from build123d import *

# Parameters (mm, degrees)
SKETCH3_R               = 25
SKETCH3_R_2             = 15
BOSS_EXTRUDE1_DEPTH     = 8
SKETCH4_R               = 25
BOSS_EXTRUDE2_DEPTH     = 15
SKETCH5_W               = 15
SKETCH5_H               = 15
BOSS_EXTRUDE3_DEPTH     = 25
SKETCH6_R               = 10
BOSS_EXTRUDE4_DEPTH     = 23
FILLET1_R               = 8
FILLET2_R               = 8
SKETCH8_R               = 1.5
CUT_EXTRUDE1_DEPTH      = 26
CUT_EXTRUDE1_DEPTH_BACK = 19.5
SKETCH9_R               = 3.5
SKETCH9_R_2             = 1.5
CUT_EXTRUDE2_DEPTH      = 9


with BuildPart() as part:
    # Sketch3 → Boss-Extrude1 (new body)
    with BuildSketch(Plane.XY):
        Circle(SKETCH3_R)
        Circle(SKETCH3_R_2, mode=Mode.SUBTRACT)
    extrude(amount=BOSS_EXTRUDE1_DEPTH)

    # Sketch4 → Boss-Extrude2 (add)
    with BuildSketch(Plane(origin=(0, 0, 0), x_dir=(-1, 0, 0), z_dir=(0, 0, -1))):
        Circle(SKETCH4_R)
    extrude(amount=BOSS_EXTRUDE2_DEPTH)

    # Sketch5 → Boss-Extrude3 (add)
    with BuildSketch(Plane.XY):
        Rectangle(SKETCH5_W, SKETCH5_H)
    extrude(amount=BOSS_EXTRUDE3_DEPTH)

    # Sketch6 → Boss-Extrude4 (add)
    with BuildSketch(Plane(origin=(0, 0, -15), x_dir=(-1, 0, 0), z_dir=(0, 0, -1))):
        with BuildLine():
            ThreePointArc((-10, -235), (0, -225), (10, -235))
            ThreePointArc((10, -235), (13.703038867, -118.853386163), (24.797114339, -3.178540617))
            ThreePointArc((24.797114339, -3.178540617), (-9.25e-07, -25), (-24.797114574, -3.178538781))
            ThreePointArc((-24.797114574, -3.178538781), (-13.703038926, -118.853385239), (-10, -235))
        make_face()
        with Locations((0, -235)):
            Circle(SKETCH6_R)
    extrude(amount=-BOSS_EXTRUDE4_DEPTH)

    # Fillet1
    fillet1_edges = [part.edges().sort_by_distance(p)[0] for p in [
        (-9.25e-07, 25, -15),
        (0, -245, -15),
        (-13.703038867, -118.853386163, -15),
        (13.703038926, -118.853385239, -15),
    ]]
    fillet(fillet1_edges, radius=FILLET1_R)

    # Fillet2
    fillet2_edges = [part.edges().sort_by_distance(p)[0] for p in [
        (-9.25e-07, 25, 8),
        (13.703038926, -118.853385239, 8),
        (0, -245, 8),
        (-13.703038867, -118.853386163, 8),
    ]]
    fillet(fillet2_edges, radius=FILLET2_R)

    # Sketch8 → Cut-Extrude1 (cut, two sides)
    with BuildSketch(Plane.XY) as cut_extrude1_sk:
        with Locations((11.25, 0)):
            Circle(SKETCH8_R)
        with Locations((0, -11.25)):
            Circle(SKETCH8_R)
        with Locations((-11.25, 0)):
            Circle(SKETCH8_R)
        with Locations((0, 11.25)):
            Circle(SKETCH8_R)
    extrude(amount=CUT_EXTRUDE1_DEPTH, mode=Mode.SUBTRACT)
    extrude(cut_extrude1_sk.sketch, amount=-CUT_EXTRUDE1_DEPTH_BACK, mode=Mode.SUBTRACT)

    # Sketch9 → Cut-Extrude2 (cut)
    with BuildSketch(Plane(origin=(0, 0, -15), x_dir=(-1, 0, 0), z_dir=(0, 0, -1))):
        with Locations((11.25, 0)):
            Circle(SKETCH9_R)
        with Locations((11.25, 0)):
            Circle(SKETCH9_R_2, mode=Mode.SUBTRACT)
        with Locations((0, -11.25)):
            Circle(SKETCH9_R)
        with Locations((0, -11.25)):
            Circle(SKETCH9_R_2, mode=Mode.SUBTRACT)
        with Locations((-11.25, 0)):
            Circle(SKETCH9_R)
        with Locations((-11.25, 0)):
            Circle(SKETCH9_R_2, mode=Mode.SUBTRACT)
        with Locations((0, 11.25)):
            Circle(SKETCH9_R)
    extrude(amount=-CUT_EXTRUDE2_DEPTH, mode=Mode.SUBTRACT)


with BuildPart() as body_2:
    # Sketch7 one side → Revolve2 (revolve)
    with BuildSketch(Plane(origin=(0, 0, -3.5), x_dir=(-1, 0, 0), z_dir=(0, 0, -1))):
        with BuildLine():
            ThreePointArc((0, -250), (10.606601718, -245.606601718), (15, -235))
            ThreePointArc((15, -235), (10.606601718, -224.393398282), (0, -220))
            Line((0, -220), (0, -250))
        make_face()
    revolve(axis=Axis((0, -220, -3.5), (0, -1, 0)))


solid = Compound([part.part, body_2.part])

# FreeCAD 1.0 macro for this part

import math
import FreeCAD as App
import Part
import Sketcher

V = App.Vector


def edges_at(feature, points):
    """Names of the edges that pass closest to the given points."""
    edges = feature.Shape.Edges
    near = lambda p: min(range(len(edges)), key=lambda i: edges[i].distToShape(Part.Vertex(*p))[0])
    return sorted({f"Edge{near(p) + 1}" for p in points})

doc = App.newDocument("Part")
params = doc.addObject("Spreadsheet::Sheet", "Params")
for row, (alias, value) in enumerate([
    ("sketch1_diameter", "50 mm"),
    ("sketch1_diameter2", "30 mm"),
    ("pad1_length", "8 mm"),
    ("sketch2_diameter", "50 mm"),
    ("pad2_length", "15 mm"),
    ("sketch3_width", "15 mm"),
    ("pad3_length", "25 mm"),
    ("sketch4_radius", "25 mm"),
    ("sketch4_radius2", "10 mm"),
    ("pad4_length", "23 mm"),
    ("fillet_radius", "8 mm"),
    ("fillet2_radius", "8 mm"),
    ("sketch5_diameter", "3 mm"),
    ("sketch6_diameter", "7 mm"),
    ("sketch6_diameter2", "3 mm"),
    ("pocket2_length", "9 mm"),
    ("sketch7_radius", "15 mm"),
    ("revolution_angle", "360 deg"),
], start=1):
    params.set(f"A{row}", alias)
    params.set(f"B{row}", "=" + value)
    params.setAlias(f"B{row}", alias)

body = doc.addObject("PartDesign::Body", "Body")

# Sketch on XY plane
sketch1 = body.newObject("Sketcher::SketchObject", "Sketch")
sketch1.AttachmentSupport = (doc.getObject("XY_Plane"), [""])
sketch1.MapMode = "FlatFace"
sketch1.addGeometry([
    Part.Circle(V(0, 0, 0), V(0, 0, 1), 25),
    Part.Circle(V(0, 0, 0), V(0, 0, 1), 15),
], False)
sketch1.addConstraint([
    Sketcher.Constraint("Coincident", 0, 3, -1, 1),
    Sketcher.Constraint("Coincident", 1, 3, -1, 1),
    Sketcher.Constraint("Diameter", 0, 50.0),
    Sketcher.Constraint("Diameter", 1, 30.0),
])
sketch1.setExpression("Constraints[2]", "Params.sketch1_diameter")
sketch1.setExpression("Constraints[3]", "Params.sketch1_diameter2")
pad1 = body.newObject("PartDesign::Pad", "Pad")
pad1.Profile = sketch1
pad1.setExpression("Length", "Params.pad1_length")

# Sketch on XY plane
sketch2 = body.newObject("Sketcher::SketchObject", "Sketch001")
sketch2.AttachmentSupport = (doc.getObject("XY_Plane"), [""])
sketch2.MapMode = "FlatFace"
sketch2.addGeometry(Part.Circle(V(0, 0, 0), V(0, 0, 1), 25), False)
sketch2.addConstraint([
    Sketcher.Constraint("Coincident", 0, 3, -1, 1),
    Sketcher.Constraint("Diameter", 0, 50.0),
])
sketch2.setExpression("Constraints[1]", "Params.sketch2_diameter")
pad2 = body.newObject("PartDesign::Pad", "Pad001")
pad2.Profile = sketch2
pad2.setExpression("Length", "Params.pad2_length")
pad2.Reversed = True

# Sketch on XY plane
sketch3 = body.newObject("Sketcher::SketchObject", "Sketch002")
sketch3.AttachmentSupport = (doc.getObject("XY_Plane"), [""])
sketch3.MapMode = "FlatFace"
sketch3.addGeometry([
    Part.LineSegment(V(-7.5, 7.5, 0), V(-7.5, -7.5, 0)),
    Part.LineSegment(V(-7.5, -7.5, 0), V(7.5, -7.5, 0)),
    Part.LineSegment(V(7.5, -7.5, 0), V(7.5, 7.5, 0)),
    Part.LineSegment(V(7.5, 7.5, 0), V(-7.5, 7.5, 0)),
], False)
sketch3.addConstraint([
    Sketcher.Constraint("Coincident", 0, 2, 1, 1),
    Sketcher.Constraint("Coincident", 1, 2, 2, 1),
    Sketcher.Constraint("Coincident", 2, 2, 3, 1),
    Sketcher.Constraint("Coincident", 3, 2, 0, 1),
    Sketcher.Constraint("Vertical", 0),
    Sketcher.Constraint("Horizontal", 1),
    Sketcher.Constraint("Vertical", 2),
    Sketcher.Constraint("Horizontal", 3),
    Sketcher.Constraint("Symmetric", 0, 2, 2, 2, -1, 1),
    Sketcher.Constraint("Equal", 3, 0),
    Sketcher.Constraint("DistanceX", 1, 1, 1, 2, 15.0),
])
sketch3.setExpression("Constraints[10]", "Params.sketch3_width")
pad3 = body.newObject("PartDesign::Pad", "Pad002")
pad3.Profile = sketch3
pad3.setExpression("Length", "Params.pad3_length")

# Sketch on XY plane
sketch4 = body.newObject("Sketcher::SketchObject", "Sketch003")
sketch4.AttachmentSupport = (doc.getObject("XY_Plane"), [""])
sketch4.MapMode = "FlatFace"
sketch4.AttachmentOffset = App.Placement(V(0, 0, -15), App.Rotation())
sketch4.addGeometry([
    Part.ArcOfCircle(Part.Circle(V(-1833.333333, -235, 0), V(0, 0, 1), 1823.333333), math.radians(0), math.radians(7.304446)),
    Part.ArcOfCircle(Part.Circle(V(0, 0, 0), V(0, 0, 1), 25), math.radians(-172.695551), math.radians(-7.304445)),
    Part.ArcOfCircle(Part.Circle(V(1833.333333, -235, 0), V(0, 0, 1), 1823.333333), math.radians(172.695554), math.radians(180)),
    Part.ArcOfCircle(Part.Circle(V(0, -235, 0), V(0, 0, 1), 10), math.radians(180), math.radians(360)),
], False)
sketch4.addConstraint([
    Sketcher.Constraint("Tangent", 0, 2, 1, 1),
    Sketcher.Constraint("Tangent", 1, 2, 2, 1),
    Sketcher.Constraint("Tangent", 2, 2, 3, 2),
    Sketcher.Constraint("Tangent", 3, 1, 0, 1),
    Sketcher.Constraint("Coincident", 1, 3, -1, 1),
    Sketcher.Constraint("Equal", 0, 2),
    Sketcher.Constraint("PointOnObject", 3, 3, -2),
    Sketcher.Constraint("Horizontal", 2, 3, 3, 3),
    Sketcher.Constraint("Radius", 1, 25.0),
    Sketcher.Constraint("Radius", 3, 10.0),
    Sketcher.Constraint("DistanceY", 0, 3, -1, 1, 235.0),
])
sketch4.setExpression("Constraints[8]", "Params.sketch4_radius")
sketch4.setExpression("Constraints[9]", "Params.sketch4_radius2")
pad4 = body.newObject("PartDesign::Pad", "Pad003")
pad4.Profile = sketch4
pad4.setExpression("Length", "Params.pad4_length")
doc.recompute()

fillet = body.newObject("PartDesign::Fillet", "Fillet")
fillet.Base = (pad4, edges_at(pad4, [
    (0, 25, -15),
    (0, -245, -15),
    (-13.703, -118.853, -15),
    (13.703, -118.853, -15),
]))
fillet.setExpression("Radius", "Params.fillet_radius")
doc.recompute()

fillet2 = body.newObject("PartDesign::Fillet", "Fillet001")
fillet2.Base = (fillet, edges_at(fillet, [
    (0, 25, 8),
    (13.703, -118.853, 8),
    (0, -245, 8),
    (-13.703, -118.853, 8),
]))
fillet2.setExpression("Radius", "Params.fillet2_radius")

# Sketch on XY plane
sketch5 = body.newObject("Sketcher::SketchObject", "Sketch004")
sketch5.AttachmentSupport = (doc.getObject("XY_Plane"), [""])
sketch5.MapMode = "FlatFace"
sketch5.addGeometry([
    Part.Circle(V(11.25, 0, 0), V(0, 0, 1), 1.5),
    Part.Circle(V(0, -11.25, 0), V(0, 0, 1), 1.5),
    Part.Circle(V(-11.25, 0, 0), V(0, 0, 1), 1.5),
    Part.Circle(V(0, 11.25, 0), V(0, 0, 1), 1.5),
], False)
sketch5.addConstraint([
    Sketcher.Constraint("Equal", 0, 1),
    Sketcher.Constraint("Equal", 1, 2),
    Sketcher.Constraint("Equal", 2, 3),
    Sketcher.Constraint("Symmetric", 0, 3, 2, 3, -1, 1),
    Sketcher.Constraint("Symmetric", 1, 3, 3, 3, -1, 1),
    Sketcher.Constraint("PointOnObject", 0, 3, -1),
    Sketcher.Constraint("PointOnObject", 1, 3, -2),
    Sketcher.Constraint("Diameter", 0, 3.0),
    Sketcher.Constraint("DistanceX", 2, 3, 0, 3, 22.5),
    Sketcher.Constraint("DistanceY", 1, 3, 3, 3, 22.5),
])
sketch5.setExpression("Constraints[7]", "Params.sketch5_diameter")
pocket1 = body.newObject("PartDesign::Pocket", "Pocket")
pocket1.Profile = sketch5
pocket1.Type = "ThroughAll"
pocket1.Midplane = True

# Sketch on XY plane
sketch6 = body.newObject("Sketcher::SketchObject", "Sketch005")
sketch6.AttachmentSupport = (doc.getObject("XY_Plane"), [""])
sketch6.MapMode = "FlatFace"
sketch6.AttachmentOffset = App.Placement(V(0, 0, -15), App.Rotation())
sketch6.addGeometry([
    Part.Circle(V(-11.25, 0, 0), V(0, 0, 1), 3.5),  # 0
    Part.Circle(V(-11.25, 0, 0), V(0, 0, 1), 1.5),  # 1
    Part.Circle(V(0, -11.25, 0), V(0, 0, 1), 3.5),  # 2
    Part.Circle(V(0, -11.25, 0), V(0, 0, 1), 1.5),  # 3
    Part.Circle(V(11.25, 0, 0), V(0, 0, 1), 3.5),  # 4
    Part.Circle(V(11.25, 0, 0), V(0, 0, 1), 1.5),  # 5
    Part.Circle(V(0, 11.25, 0), V(0, 0, 1), 3.5),  # 6
], False)
sketch6.addConstraint([
    Sketcher.Constraint("Coincident", 1, 3, 0, 3),
    Sketcher.Constraint("Coincident", 3, 3, 2, 3),
    Sketcher.Constraint("Coincident", 5, 3, 4, 3),
    Sketcher.Constraint("Equal", 0, 2),
    Sketcher.Constraint("Equal", 1, 3),
    Sketcher.Constraint("Equal", 2, 4),
    Sketcher.Constraint("Equal", 3, 5),
    Sketcher.Constraint("Equal", 4, 6),
    Sketcher.Constraint("Symmetric", 0, 3, 4, 3, -1, 1),
    Sketcher.Constraint("Symmetric", 2, 3, 6, 3, -1, 1),
    Sketcher.Constraint("PointOnObject", 0, 3, -1),
    Sketcher.Constraint("PointOnObject", 2, 3, -2),
    Sketcher.Constraint("Diameter", 0, 7.0),
    Sketcher.Constraint("Diameter", 1, 3.0),
    Sketcher.Constraint("DistanceX", 0, 3, 4, 3, 22.5),
    Sketcher.Constraint("DistanceY", 2, 3, 6, 3, 22.5),
])
sketch6.setExpression("Constraints[12]", "Params.sketch6_diameter")
sketch6.setExpression("Constraints[13]", "Params.sketch6_diameter2")
pocket2 = body.newObject("PartDesign::Pocket", "Pocket001")
pocket2.Profile = sketch6
pocket2.setExpression("Length", "Params.pocket2_length")
pocket2.Reversed = True
body2 = doc.addObject("PartDesign::Body", "Body001")

# Sketch on XY plane
sketch7 = body2.newObject("Sketcher::SketchObject", "Sketch006")
sketch7.AttachmentSupport = (doc.getObject("XY_Plane001"), [""])
sketch7.MapMode = "FlatFace"
sketch7.AttachmentOffset = App.Placement(V(0, 0, -3.5), App.Rotation())
sketch7.addGeometry([
    Part.ArcOfCircle(Part.Circle(V(0, -235, 0), V(0, 0, 1), 15), math.radians(180), math.radians(270)),
    Part.ArcOfCircle(Part.Circle(V(0, -235, 0), V(0, 0, 1), 15), math.radians(90), math.radians(180)),
    Part.LineSegment(V(0, -220, 0), V(0, -250, 0)),
], False)
sketch7.addConstraint([
    Sketcher.Constraint("Tangent", 0, 1, 1, 2),
    Sketcher.Constraint("Coincident", 1, 1, 2, 1),
    Sketcher.Constraint("Coincident", 2, 2, 0, 2),
    Sketcher.Constraint("Vertical", 2),
    Sketcher.Constraint("Equal", 0, 1),
    Sketcher.Constraint("PointOnObject", 0, 3, -2),
    Sketcher.Constraint("PointOnObject", 1, 1, -2),
    Sketcher.Constraint("Horizontal", 1, 3, 0, 1),
    Sketcher.Constraint("Radius", 0, 15.0),
    Sketcher.Constraint("DistanceY", 0, 3, -1, 1, 235.0),
])
sketch7.setExpression("Constraints[8]", "Params.sketch7_radius")
revolution = body2.newObject("PartDesign::Revolution", "Revolution")
revolution.Profile = sketch7
revolution.ReferenceAxis = (sketch7, ["V_Axis"])
revolution.setExpression("Angle", "Params.revolution_angle")

doc.recompute()
